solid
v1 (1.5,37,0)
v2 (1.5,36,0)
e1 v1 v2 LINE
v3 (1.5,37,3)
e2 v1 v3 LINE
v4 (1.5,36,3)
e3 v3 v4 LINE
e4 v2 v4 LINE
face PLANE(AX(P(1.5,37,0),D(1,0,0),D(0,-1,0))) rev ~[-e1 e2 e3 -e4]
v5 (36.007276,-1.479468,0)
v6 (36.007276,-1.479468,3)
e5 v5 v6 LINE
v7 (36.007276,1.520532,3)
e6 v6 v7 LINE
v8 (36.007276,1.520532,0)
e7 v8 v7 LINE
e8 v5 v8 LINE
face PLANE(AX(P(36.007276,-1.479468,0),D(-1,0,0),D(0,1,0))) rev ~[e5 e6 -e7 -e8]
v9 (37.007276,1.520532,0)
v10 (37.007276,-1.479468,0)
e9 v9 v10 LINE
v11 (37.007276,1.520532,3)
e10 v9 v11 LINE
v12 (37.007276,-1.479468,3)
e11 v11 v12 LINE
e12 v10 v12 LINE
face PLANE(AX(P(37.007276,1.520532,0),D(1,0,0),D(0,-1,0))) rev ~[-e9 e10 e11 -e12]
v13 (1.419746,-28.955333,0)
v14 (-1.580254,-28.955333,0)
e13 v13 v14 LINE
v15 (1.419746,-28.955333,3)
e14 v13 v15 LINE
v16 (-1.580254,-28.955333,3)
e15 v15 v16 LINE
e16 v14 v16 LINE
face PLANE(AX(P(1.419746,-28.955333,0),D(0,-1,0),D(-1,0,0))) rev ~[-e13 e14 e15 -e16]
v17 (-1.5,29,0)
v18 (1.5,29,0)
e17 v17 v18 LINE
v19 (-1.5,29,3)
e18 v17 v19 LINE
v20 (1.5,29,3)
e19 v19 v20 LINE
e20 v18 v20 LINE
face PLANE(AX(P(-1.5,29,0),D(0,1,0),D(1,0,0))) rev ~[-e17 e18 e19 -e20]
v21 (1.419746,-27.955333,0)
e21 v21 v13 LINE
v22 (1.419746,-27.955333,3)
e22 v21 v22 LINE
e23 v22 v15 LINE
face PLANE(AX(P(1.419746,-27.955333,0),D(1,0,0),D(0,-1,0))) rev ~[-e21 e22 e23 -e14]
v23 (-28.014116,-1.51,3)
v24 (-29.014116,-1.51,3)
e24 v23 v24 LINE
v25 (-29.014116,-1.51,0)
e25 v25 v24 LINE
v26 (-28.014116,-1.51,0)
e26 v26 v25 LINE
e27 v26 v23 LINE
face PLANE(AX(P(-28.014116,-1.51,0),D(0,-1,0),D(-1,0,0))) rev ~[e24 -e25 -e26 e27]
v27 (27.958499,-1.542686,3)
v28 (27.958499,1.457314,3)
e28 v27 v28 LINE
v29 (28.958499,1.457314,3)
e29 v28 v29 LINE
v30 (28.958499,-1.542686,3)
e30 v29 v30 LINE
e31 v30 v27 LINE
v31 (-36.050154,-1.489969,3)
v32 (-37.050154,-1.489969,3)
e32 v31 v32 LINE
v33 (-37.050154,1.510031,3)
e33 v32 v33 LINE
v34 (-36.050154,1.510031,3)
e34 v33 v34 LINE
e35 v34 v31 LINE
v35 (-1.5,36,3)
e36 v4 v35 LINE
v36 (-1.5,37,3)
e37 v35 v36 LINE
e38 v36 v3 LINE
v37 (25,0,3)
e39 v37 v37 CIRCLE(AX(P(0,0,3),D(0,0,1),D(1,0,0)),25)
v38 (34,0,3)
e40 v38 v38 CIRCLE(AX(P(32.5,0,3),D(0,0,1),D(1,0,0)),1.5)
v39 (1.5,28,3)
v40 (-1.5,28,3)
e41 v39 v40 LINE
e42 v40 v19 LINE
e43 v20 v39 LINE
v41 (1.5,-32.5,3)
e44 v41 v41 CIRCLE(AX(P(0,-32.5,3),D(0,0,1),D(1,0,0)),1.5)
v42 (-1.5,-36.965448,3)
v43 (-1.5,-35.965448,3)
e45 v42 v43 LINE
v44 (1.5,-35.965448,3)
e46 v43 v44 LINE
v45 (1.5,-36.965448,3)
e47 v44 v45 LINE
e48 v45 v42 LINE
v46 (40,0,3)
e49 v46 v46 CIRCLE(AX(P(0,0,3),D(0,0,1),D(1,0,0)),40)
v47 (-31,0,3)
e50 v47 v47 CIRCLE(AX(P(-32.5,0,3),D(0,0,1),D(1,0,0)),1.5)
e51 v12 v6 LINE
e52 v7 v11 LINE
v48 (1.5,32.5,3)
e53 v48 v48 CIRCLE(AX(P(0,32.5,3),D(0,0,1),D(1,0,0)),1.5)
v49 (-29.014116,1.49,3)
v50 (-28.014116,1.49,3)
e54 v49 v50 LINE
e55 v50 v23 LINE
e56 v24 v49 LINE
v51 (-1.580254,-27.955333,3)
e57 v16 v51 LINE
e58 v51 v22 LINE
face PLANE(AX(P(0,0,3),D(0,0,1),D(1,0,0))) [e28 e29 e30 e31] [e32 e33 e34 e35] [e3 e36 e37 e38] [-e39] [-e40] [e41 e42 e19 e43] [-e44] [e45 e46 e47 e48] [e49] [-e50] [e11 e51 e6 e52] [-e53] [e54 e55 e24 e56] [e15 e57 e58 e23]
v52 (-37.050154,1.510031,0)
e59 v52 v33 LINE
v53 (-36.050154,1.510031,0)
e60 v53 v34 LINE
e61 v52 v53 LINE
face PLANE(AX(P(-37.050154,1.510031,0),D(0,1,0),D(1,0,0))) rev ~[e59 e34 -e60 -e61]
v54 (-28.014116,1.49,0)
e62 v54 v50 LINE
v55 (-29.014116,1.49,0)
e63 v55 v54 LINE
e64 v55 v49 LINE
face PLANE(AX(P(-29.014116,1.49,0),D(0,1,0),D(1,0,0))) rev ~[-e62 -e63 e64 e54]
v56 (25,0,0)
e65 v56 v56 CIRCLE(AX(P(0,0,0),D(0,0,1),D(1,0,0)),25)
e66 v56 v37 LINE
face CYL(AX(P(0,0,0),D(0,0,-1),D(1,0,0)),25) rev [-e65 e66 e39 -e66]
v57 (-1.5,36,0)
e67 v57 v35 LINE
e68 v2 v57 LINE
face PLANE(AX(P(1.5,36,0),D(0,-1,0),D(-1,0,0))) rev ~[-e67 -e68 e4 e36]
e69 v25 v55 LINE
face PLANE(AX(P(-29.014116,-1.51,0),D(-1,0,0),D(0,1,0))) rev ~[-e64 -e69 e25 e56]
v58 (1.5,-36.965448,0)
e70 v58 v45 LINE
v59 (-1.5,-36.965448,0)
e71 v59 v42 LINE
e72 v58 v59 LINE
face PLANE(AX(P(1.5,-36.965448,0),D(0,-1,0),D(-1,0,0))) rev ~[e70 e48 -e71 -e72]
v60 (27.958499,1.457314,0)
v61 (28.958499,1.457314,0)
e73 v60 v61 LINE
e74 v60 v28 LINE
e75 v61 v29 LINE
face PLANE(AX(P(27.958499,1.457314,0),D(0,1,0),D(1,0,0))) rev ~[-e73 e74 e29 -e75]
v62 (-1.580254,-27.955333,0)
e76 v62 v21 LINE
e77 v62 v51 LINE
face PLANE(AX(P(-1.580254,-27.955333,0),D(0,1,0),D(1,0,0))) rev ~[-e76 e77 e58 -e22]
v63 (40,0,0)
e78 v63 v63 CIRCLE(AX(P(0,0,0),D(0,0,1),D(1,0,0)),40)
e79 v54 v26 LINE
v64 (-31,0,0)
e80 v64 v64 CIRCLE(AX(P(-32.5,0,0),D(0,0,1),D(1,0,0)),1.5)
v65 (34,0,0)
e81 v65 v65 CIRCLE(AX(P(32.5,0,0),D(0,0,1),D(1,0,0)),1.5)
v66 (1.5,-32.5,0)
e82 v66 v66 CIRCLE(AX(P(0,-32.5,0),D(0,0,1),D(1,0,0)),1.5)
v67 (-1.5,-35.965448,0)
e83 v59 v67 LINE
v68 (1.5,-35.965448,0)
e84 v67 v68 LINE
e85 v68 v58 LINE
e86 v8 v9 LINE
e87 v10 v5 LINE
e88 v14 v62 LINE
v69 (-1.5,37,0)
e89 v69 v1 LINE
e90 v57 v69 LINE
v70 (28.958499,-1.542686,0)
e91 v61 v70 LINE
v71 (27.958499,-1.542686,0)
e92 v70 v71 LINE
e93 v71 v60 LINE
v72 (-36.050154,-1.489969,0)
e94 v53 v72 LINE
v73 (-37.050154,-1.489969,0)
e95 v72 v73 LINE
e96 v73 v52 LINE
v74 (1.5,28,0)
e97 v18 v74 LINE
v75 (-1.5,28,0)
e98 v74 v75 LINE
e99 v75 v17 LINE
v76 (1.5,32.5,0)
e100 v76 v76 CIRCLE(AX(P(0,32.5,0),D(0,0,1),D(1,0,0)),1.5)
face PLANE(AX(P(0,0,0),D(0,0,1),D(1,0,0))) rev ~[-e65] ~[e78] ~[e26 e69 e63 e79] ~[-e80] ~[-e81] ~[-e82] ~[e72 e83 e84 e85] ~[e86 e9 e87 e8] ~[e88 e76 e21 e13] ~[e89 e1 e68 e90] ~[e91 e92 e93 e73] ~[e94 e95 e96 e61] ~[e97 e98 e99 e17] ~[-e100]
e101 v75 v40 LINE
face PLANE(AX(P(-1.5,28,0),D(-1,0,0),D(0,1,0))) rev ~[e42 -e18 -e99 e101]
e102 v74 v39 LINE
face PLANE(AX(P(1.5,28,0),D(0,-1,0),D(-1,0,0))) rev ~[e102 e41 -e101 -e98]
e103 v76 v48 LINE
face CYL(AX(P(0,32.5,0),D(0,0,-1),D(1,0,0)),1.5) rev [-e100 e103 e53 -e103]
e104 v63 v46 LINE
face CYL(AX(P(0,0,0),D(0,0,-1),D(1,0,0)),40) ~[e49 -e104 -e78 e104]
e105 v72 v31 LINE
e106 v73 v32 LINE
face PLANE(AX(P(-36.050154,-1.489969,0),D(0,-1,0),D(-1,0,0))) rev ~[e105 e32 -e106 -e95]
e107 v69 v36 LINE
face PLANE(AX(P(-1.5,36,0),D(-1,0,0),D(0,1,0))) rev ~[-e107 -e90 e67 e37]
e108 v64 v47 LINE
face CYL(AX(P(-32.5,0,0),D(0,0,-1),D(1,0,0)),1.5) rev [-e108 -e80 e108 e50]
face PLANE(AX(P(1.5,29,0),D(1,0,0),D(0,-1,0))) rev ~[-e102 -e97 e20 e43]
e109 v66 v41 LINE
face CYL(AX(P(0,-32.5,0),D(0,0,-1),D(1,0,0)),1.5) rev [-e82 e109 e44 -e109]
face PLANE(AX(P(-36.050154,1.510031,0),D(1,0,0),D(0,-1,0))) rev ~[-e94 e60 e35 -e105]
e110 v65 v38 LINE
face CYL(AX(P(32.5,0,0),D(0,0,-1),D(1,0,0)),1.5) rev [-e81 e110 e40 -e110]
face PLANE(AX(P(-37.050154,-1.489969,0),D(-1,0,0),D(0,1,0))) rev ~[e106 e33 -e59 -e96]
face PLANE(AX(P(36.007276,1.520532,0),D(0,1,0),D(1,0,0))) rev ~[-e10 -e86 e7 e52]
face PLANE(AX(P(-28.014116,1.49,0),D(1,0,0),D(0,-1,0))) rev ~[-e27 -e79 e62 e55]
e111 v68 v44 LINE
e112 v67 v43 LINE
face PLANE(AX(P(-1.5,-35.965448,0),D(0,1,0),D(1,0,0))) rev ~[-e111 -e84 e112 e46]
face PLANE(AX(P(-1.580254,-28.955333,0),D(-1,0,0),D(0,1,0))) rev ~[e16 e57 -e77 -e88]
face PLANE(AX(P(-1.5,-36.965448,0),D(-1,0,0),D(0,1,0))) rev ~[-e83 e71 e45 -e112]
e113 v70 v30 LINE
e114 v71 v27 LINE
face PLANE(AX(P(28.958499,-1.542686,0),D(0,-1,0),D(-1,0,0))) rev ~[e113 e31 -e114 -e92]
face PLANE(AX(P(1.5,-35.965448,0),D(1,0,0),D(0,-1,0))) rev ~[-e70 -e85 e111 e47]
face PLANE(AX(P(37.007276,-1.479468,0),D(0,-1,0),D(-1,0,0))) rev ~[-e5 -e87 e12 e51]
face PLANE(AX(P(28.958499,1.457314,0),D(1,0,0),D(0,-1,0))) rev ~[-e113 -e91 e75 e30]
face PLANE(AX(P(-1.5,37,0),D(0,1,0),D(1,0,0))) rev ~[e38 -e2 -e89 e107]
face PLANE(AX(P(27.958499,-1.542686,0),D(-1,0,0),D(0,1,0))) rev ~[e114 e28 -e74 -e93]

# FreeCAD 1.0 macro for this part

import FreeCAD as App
import Part
import Sketcher
from FreeCAD import Vector
Q = App.Units.Quantity

doc = App.newDocument("Part")
body = doc.addObject("PartDesign::Body", "Body")

# Sketch on XY plane
sketch1 = body.newObject("Sketcher::SketchObject", "Sketch")
sketch1.AttachmentSupport = (doc.getObject("XY_Plane"), [""])
sketch1.MapMode = "FlatFace"
sketch1.addGeometry([
    Part.Circle(Vector(0, 0, 0), Vector(0, 0, 1), 40),  # 0
    Part.LineSegment(Vector(1.4, -28, 0), Vector(1.4, -29, 0)),  # 1
    Part.LineSegment(Vector(1.4, -29, 0), Vector(-1.6, -29, 0)),  # 2
    Part.LineSegment(Vector(-1.6, -29, 0), Vector(-1.6, -28, 0)),  # 3
    Part.LineSegment(Vector(-1.6, -28, 0), Vector(1.4, -28, 0)),  # 4
    Part.LineSegment(Vector(-37.1, 1.5, 0), Vector(-36.1, 1.5, 0)),  # 5
    Part.LineSegment(Vector(-36.1, 1.5, 0), Vector(-36.1, -1.5, 0)),  # 6
    Part.LineSegment(Vector(-36.1, -1.5, 0), Vector(-37.1, -1.5, 0)),  # 7
    Part.LineSegment(Vector(-37.1, -1.5, 0), Vector(-37.1, 1.5, 0)),  # 8
    Part.Circle(Vector(-32.5, 0, 0), Vector(0, 0, 1), 1.5),  # 9
    Part.LineSegment(Vector(-28, -1.5, 0), Vector(-29, -1.5, 0)),  # 10
    Part.LineSegment(Vector(-29, -1.5, 0), Vector(-29, 1.5, 0)),  # 11
    Part.LineSegment(Vector(-29, 1.5, 0), Vector(-28, 1.5, 0)),  # 12
    Part.LineSegment(Vector(-28, 1.5, 0), Vector(-28, -1.5, 0)),  # 13
    Part.LineSegment(Vector(-1.5, -37, 0), Vector(-1.5, -36, 0)),  # 14
    Part.LineSegment(Vector(-1.5, -36, 0), Vector(1.5, -36, 0)),  # 15
    Part.LineSegment(Vector(1.5, -36, 0), Vector(1.5, -37, 0)),  # 16
    Part.LineSegment(Vector(1.5, -37, 0), Vector(-1.5, -37, 0)),  # 17
    Part.Circle(Vector(0, -32.5, 0), Vector(0, 0, 1), 1.5),  # 18
    Part.Circle(Vector(0, 0, 0), Vector(0, 0, 1), 25),  # 19
    Part.LineSegment(Vector(28, 1.5, 0), Vector(29, 1.5, 0)),  # 20
    Part.LineSegment(Vector(29, 1.5, 0), Vector(29, -1.5, 0)),  # 21
    Part.LineSegment(Vector(29, -1.5, 0), Vector(28, -1.5, 0)),  # 22
    Part.LineSegment(Vector(28, -1.5, 0), Vector(28, 1.5, 0)),  # 23
    Part.Circle(Vector(32.5, 0, 0), Vector(0, 0, 1), 1.5),  # 24
    Part.LineSegment(Vector(37, -1.5, 0), Vector(36, -1.5, 0)),  # 25
    Part.LineSegment(Vector(36, -1.5, 0), Vector(36, 1.5, 0)),  # 26
    Part.LineSegment(Vector(36, 1.5, 0), Vector(37, 1.5, 0)),  # 27
    Part.LineSegment(Vector(37, 1.5, 0), Vector(37, -1.5, 0)),  # 28
    Part.LineSegment(Vector(-1.5, 28, 0), Vector(-1.5, 29, 0)),  # 29
    Part.LineSegment(Vector(-1.5, 29, 0), Vector(1.5, 29, 0)),  # 30
    Part.LineSegment(Vector(1.5, 29, 0), Vector(1.5, 28, 0)),  # 31
    Part.LineSegment(Vector(1.5, 28, 0), Vector(-1.5, 28, 0)),  # 32
    Part.Circle(Vector(0, 32.5, 0), Vector(0, 0, 1), 1.5),  # 33
    Part.LineSegment(Vector(1.5, 37, 0), Vector(1.5, 36, 0)),  # 34
    Part.LineSegment(Vector(1.5, 36, 0), Vector(-1.5, 36, 0)),  # 35
    Part.LineSegment(Vector(-1.5, 36, 0), Vector(-1.5, 37, 0)),  # 36
    Part.LineSegment(Vector(-1.5, 37, 0), Vector(1.5, 37, 0)),  # 37
], False)
sketch1.addConstraint([
    Sketcher.Constraint("Coincident", 1, 2, 2, 1),
    Sketcher.Constraint("Coincident", 2, 2, 3, 1),
    Sketcher.Constraint("Coincident", 3, 2, 4, 1),
    Sketcher.Constraint("Coincident", 4, 2, 1, 1),
    Sketcher.Constraint("Coincident", 5, 2, 6, 1),
    Sketcher.Constraint("Coincident", 6, 2, 7, 1),
    Sketcher.Constraint("Coincident", 7, 2, 8, 1),
    Sketcher.Constraint("Coincident", 8, 2, 5, 1),
    Sketcher.Constraint("Coincident", 10, 2, 11, 1),
    Sketcher.Constraint("Coincident", 11, 2, 12, 1),
    Sketcher.Constraint("Coincident", 12, 2, 13, 1),
    Sketcher.Constraint("Coincident", 13, 2, 10, 1),
    Sketcher.Constraint("Coincident", 14, 2, 15, 1),
    Sketcher.Constraint("Coincident", 15, 2, 16, 1),
    Sketcher.Constraint("Coincident", 16, 2, 17, 1),
    Sketcher.Constraint("Coincident", 17, 2, 14, 1),
    Sketcher.Constraint("Coincident", 20, 2, 21, 1),
    Sketcher.Constraint("Coincident", 21, 2, 22, 1),
    Sketcher.Constraint("Coincident", 22, 2, 23, 1),
    Sketcher.Constraint("Coincident", 23, 2, 20, 1),
    Sketcher.Constraint("Coincident", 25, 2, 26, 1),
    Sketcher.Constraint("Coincident", 26, 2, 27, 1),
    Sketcher.Constraint("Coincident", 27, 2, 28, 1),
    Sketcher.Constraint("Coincident", 28, 2, 25, 1),
    Sketcher.Constraint("Coincident", 29, 2, 30, 1),
    Sketcher.Constraint("Coincident", 30, 2, 31, 1),
    Sketcher.Constraint("Coincident", 31, 2, 32, 1),
    Sketcher.Constraint("Coincident", 32, 2, 29, 1),
    Sketcher.Constraint("Coincident", 34, 2, 35, 1),
    Sketcher.Constraint("Coincident", 35, 2, 36, 1),
    Sketcher.Constraint("Coincident", 36, 2, 37, 1),
    Sketcher.Constraint("Coincident", 37, 2, 34, 1),
    Sketcher.Constraint("Vertical", 1),
    Sketcher.Constraint("Horizontal", 2),
    Sketcher.Constraint("Vertical", 3),
    Sketcher.Constraint("Horizontal", 4),
    Sketcher.Constraint("Horizontal", 5),
    Sketcher.Constraint("Vertical", 6),
    Sketcher.Constraint("Horizontal", 7),
    Sketcher.Constraint("Vertical", 8),
    Sketcher.Constraint("Horizontal", 10),
    Sketcher.Constraint("Vertical", 11),
    Sketcher.Constraint("Horizontal", 12),
    Sketcher.Constraint("Vertical", 13),
    Sketcher.Constraint("Vertical", 14),
    Sketcher.Constraint("Horizontal", 15),
    Sketcher.Constraint("Vertical", 16),
    Sketcher.Constraint("Horizontal", 17),
    Sketcher.Constraint("Horizontal", 20),
    Sketcher.Constraint("Vertical", 21),
    Sketcher.Constraint("Horizontal", 22),
    Sketcher.Constraint("Vertical", 23),
    Sketcher.Constraint("Horizontal", 25),
    Sketcher.Constraint("Vertical", 26),
    Sketcher.Constraint("Horizontal", 27),
    Sketcher.Constraint("Vertical", 28),
    Sketcher.Constraint("Vertical", 29),
    Sketcher.Constraint("Horizontal", 30),
    Sketcher.Constraint("Vertical", 31),
    Sketcher.Constraint("Horizontal", 32),
    Sketcher.Constraint("Vertical", 34),
    Sketcher.Constraint("Horizontal", 35),
    Sketcher.Constraint("Vertical", 36),
    Sketcher.Constraint("Horizontal", 37),
    Sketcher.Constraint("Coincident", 0, 3, -1, 1),
    Sketcher.Constraint("Coincident", 19, 3, -1, 1),
    Sketcher.Constraint("Equal", 9, 18),
    Sketcher.Constraint("Equal", 18, 24),
    Sketcher.Constraint("Equal", 24, 33),
    Sketcher.Constraint("Symmetric", 9, 3, 24, 3, -1, 1),
    Sketcher.Constraint("Symmetric", 18, 3, 33, 3, -1, 1),
    Sketcher.Constraint("PointOnObject", 9, 3, -1),
    Sketcher.Constraint("PointOnObject", 18, 3, -2),
    Sketcher.Constraint("Vertical", 17, 2, 29, 2),
    Sketcher.Constraint("Vertical", 16, 2, 30, 2),
    Sketcher.Constraint("Vertical", 31, 2, 34, 2),
    Sketcher.Constraint("Vertical", 32, 2, 35, 2),
    Sketcher.Constraint("Equal", 7, 10),
    Sketcher.Constraint("Equal", 4, 15),
    Sketcher.Constraint("Equal", 12, 20),
    Sketcher.Constraint("Equal", 22, 25),
    Sketcher.Constraint("Equal", 27, 1),
    Sketcher.Constraint("Equal", 37, 6),
    Sketcher.Constraint("Equal", 8, 11),
    Sketcher.Constraint("Equal", 3, 14),
    Sketcher.Constraint("Equal", 13, 21),
    Sketcher.Constraint("Equal", 23, 26),
    Sketcher.Constraint("Equal", 16, 29),
    Sketcher.Constraint("Equal", 31, 34),
    Sketcher.Constraint("Diameter", 0, Q("80 mm")),
    Sketcher.Constraint("Diameter", 9, Q("3 mm")),
    Sketcher.Constraint("Diameter", 19, Q("50 mm")),
    Sketcher.Constraint("DistanceX", 2, 2, 2, 1, Q("3 mm")),
    Sketcher.Constraint("DistanceX", 5, 1, 5, 2, Q("1 mm")),
    Sketcher.Constraint("DistanceY", -1, 1, 29, 2, Q("29 mm")),
    Sketcher.Constraint("DistanceY", -1, 1, 34, 2, Q("36 mm")),
    Sketcher.Constraint("DistanceX", 9, 3, 24, 3, Q("65 mm")),
    Sketcher.Constraint("DistanceY", 18, 3, 33, 3, Q("65 mm")),
    Sketcher.Constraint("DistanceX", 14, 2, -1, 1, Q("1.5 mm")),
    Sketcher.Constraint("DistanceY", 10, 2, -1, 1, Q("1.51 mm")),
    Sketcher.Constraint("DistanceX", -1, 1, 20, 2, Q("28.958499 mm")),
    Sketcher.Constraint("DistanceX", 5, 2, 3, 2, Q("34.4699 mm")),
    Sketcher.Constraint("DistanceY", -1, 1, 5, 2, Q("1.510031 mm")),
    Sketcher.Constraint("DistanceY", 14, 2, -1, 1, Q("35.965448 mm")),
    Sketcher.Constraint("DistanceY", 25, 2, 20, 2, Q("2.936782 mm")),
    Sketcher.Constraint("DistanceX", -1, 1, 1, 2, Q("1.419746 mm")),
    Sketcher.Constraint("DistanceY", 1, 2, -1, 1, Q("28.955333 mm")),
    Sketcher.Constraint("DistanceX", 10, 2, -1, 1, Q("29.014116 mm")),
    Sketcher.Constraint("DistanceY", -1, 1, 20, 2, Q("1.457314 mm")),
    Sketcher.Constraint("DistanceX", -1, 1, 25, 2, Q("36.007276 mm")),
])
pad1 = body.newObject("PartDesign::Pad", "Pad")
pad1.Profile = sketch1
pad1.Length = 3

doc.recompute()
